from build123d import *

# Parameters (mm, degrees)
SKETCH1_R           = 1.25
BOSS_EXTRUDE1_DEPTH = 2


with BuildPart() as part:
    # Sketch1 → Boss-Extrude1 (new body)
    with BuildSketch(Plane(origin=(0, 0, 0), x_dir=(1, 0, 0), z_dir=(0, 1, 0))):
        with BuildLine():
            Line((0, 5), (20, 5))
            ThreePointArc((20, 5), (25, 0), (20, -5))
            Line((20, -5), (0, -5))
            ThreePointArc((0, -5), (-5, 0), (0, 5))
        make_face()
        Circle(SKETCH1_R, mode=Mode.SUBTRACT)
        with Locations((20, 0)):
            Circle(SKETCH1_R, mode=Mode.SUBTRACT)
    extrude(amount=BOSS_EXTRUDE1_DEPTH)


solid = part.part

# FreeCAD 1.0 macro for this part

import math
import FreeCAD as App
import Part
import Sketcher

V = App.Vector

doc = App.newDocument("Part")
params = doc.addObject("Spreadsheet::Sheet", "Params")
for row, (alias, value) in enumerate([
    ("sketch1_radius", "5 mm"),
    ("sketch1_diameter", "2.5 mm"),
    ("sketch1_width", "20 mm"),
    ("pad1_length", "2 mm"),
], start=1):
    params.set(f"A{row}", alias)
    params.set(f"B{row}", "=" + value)
    params.setAlias(f"B{row}", alias)

body = doc.addObject("PartDesign::Body", "Body")

sketch1 = doc.addObject("Sketcher::SketchObject", "Sketch")
body.addObject(sketch1)
sketch1.AttachmentSupport = (doc.XZ_Plane, [""])
sketch1.MapMode = "FlatFace"
sketch1.addGeometry([
    Part.LineSegment(V(20, -5, 0), V(0, -5, 0)),
    Part.ArcOfCircle(Part.Circle(V(0, 0, 0), V(0, 0, 1), 5), math.radians(90), math.radians(270)),
    Part.LineSegment(V(0, 5, 0), V(20, 5, 0)),
    Part.ArcOfCircle(Part.Circle(V(20, 0, 0), V(0, 0, 1), 5), math.radians(-90), math.radians(90)),
    Part.Circle(V(20, 0, 0), V(0, 0, 1), 1.2),
    Part.Circle(V(0, 0, 0), V(0, 0, 1), 1.2),
], False)
sketch1.addConstraint([
    Sketcher.Constraint("Tangent", 0, 2, 1, 2),
    Sketcher.Constraint("Tangent", 1, 1, 2, 1),
    Sketcher.Constraint("Tangent", 2, 2, 3, 2),
    Sketcher.Constraint("Tangent", 3, 1, 0, 1),
    Sketcher.Constraint("Horizontal", 0),
    Sketcher.Constraint("Horizontal", 2),
    Sketcher.Constraint("Coincident", 1, 3, -1, 1),
    Sketcher.Constraint("Coincident", 5, 3, -1, 1),
    Sketcher.Constraint("Coincident", 4, 3, 3, 3),
    Sketcher.Constraint("Equal", 4, 5),
    Sketcher.Constraint("Radius", 1, 5.0),
    Sketcher.Constraint("Diameter", 4, 2.5),
    Sketcher.Constraint("DistanceX", 0, 2, 0, 1, 20.0),
])
sketch1.setExpression("Constraints[10]", "Params.sketch1_radius")
sketch1.setExpression("Constraints[11]", "Params.sketch1_diameter")
sketch1.setExpression("Constraints[12]", "Params.sketch1_width")
pad1 = doc.addObject("PartDesign::Pad", "Pad")
body.addObject(pad1)
pad1.Profile = sketch1
pad1.setExpression("Length", "Params.pad1_length")
pad1.Reversed = True

doc.recompute()
